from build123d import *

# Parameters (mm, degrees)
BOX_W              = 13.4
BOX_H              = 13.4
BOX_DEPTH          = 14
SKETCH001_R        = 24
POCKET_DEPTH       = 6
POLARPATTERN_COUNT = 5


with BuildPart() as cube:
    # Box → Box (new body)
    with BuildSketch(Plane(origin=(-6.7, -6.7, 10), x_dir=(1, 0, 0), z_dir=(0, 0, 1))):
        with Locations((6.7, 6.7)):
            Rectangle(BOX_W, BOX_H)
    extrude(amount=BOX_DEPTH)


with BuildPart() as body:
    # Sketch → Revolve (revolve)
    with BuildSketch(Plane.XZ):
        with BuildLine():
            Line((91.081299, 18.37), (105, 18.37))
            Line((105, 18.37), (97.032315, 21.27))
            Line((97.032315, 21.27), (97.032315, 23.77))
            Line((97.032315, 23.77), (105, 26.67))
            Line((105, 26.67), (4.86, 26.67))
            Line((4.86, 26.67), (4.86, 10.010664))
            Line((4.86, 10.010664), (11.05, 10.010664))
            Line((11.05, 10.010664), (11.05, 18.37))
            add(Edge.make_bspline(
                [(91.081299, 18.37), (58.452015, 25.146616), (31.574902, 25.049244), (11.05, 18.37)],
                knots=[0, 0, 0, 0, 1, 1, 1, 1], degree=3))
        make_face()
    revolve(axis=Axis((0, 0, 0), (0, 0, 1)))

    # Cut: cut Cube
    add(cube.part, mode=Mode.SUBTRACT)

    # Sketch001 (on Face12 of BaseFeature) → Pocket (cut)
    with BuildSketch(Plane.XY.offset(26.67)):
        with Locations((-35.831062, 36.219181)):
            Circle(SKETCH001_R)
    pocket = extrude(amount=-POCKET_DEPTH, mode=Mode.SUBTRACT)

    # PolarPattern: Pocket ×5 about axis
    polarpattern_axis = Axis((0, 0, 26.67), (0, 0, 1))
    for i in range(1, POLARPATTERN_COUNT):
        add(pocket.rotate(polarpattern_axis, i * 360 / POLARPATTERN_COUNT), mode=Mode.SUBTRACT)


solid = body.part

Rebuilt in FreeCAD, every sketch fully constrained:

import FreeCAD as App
import Part
import Sketcher
Q = App.Units.Quantity


def add_polygon(sketch, points):
    """Adds a closed chain of lines whose ends are joined by coincident constraints."""
    first, n = sketch.GeometryCount, len(points)
    for a, b in zip(points, points[1:] + points[:1]):
        sketch.addGeometry(Part.LineSegment(App.Vector(*a, 0), App.Vector(*b, 0)), False)
    for i in range(n):
        sketch.addConstraint(Sketcher.Constraint("Coincident", first + i, 2, first + (i + 1) % n, 1))

doc = App.newDocument("Part")
body = doc.addObject("PartDesign::Body", "Body")

# Sketch on XY plane
sketch1 = body.newObject("Sketcher::SketchObject", "Sketch")
sketch1.AttachmentSupport = (doc.getObject("XY_Plane"), [""])
sketch1.MapMode = "FlatFace"
sketch1.AttachmentOffset = App.Placement(App.Vector(0, 0, 10), App.Rotation())
add_polygon(sketch1, [(-6.7, 6.7), (-6.7, -6.7), (6.7, -6.7), (6.7, 6.7)])  # lines 0-3
sketch1.addConstraint(Sketcher.Constraint("Vertical", 0))
sketch1.addConstraint(Sketcher.Constraint("Horizontal", 1))
sketch1.addConstraint(Sketcher.Constraint("Vertical", 2))
sketch1.addConstraint(Sketcher.Constraint("Horizontal", 3))
sketch1.addConstraint(Sketcher.Constraint("Symmetric", 0, 2, 2, 2, -1, 1))
sketch1.addConstraint(Sketcher.Constraint("Equal", 3, 0))
sketch1.addConstraint(Sketcher.Constraint("DistanceX", 1, 1, 1, 2, Q("13.4 mm")))
pad1 = body.newObject("PartDesign::Pad", "Pad")
pad1.Profile = sketch1
pad1.Length = 14
body2 = doc.addObject("PartDesign::Body", "Body001")

# Sketch on XZ plane
sketch2 = body2.newObject("Sketcher::SketchObject", "Sketch001")
sketch2.AttachmentSupport = (doc.getObject("XZ_Plane001"), [""])
sketch2.MapMode = "FlatFace"
sketch2.addGeometry(Part.LineSegment(App.Vector(91.081299, 18.37, 0), App.Vector(105, 18.37, 0)), False)
sketch2.addGeometry(Part.LineSegment(App.Vector(105, 18.37, 0), App.Vector(97.032315, 21.27, 0)), False)
sketch2.addGeometry(Part.LineSegment(App.Vector(97.032315, 21.27, 0), App.Vector(97.032315, 23.77, 0)), False)
sketch2.addGeometry(Part.LineSegment(App.Vector(97.032315, 23.77, 0), App.Vector(105, 26.67, 0)), False)
sketch2.addGeometry(Part.LineSegment(App.Vector(105, 26.67, 0), App.Vector(4.86, 26.67, 0)), False)
sketch2.addGeometry(Part.LineSegment(App.Vector(4.86, 26.67, 0), App.Vector(4.86, 10.010664, 0)), False)
sketch2.addGeometry(Part.LineSegment(App.Vector(4.86, 10.010664, 0), App.Vector(11.05, 10.010664, 0)), False)
sketch2.addGeometry(Part.LineSegment(App.Vector(11.05, 10.010664, 0), App.Vector(11.05, 18.37, 0)), False)
sketch2.addGeometry(Part.BSplineCurve([App.Vector(91.081299, 18.37, 0), App.Vector(58.452015, 25.146616, 0), App.Vector(31.574902, 25.049244, 0), App.Vector(11.05, 18.37, 0)], [4, 4], [0, 1], False, 3, [1, 1, 1, 1], False), False)
sketch2.addConstraint(Sketcher.Constraint("Block", 8))
sketch2.addConstraint(Sketcher.Constraint("Coincident", 0, 2, 1, 1))
sketch2.addConstraint(Sketcher.Constraint("Coincident", 1, 2, 2, 1))
sketch2.addConstraint(Sketcher.Constraint("Coincident", 2, 2, 3, 1))
sketch2.addConstraint(Sketcher.Constraint("Coincident", 3, 2, 4, 1))
sketch2.addConstraint(Sketcher.Constraint("Coincident", 4, 2, 5, 1))
sketch2.addConstraint(Sketcher.Constraint("Coincident", 5, 2, 6, 1))
sketch2.addConstraint(Sketcher.Constraint("Coincident", 6, 2, 7, 1))
sketch2.addConstraint(Sketcher.Constraint("Coincident", 7, 2, 8, 2))
sketch2.addConstraint(Sketcher.Constraint("Coincident", 8, 1, 0, 1))
sketch2.addConstraint(Sketcher.Constraint("Horizontal", 0))
sketch2.addConstraint(Sketcher.Constraint("Vertical", 2))
sketch2.addConstraint(Sketcher.Constraint("Horizontal", 4))
sketch2.addConstraint(Sketcher.Constraint("Vertical", 5))
sketch2.addConstraint(Sketcher.Constraint("Horizontal", 6))
sketch2.addConstraint(Sketcher.Constraint("Vertical", 7))
sketch2.addConstraint(Sketcher.Constraint("Vertical", 0, 2, 3, 2))
sketch2.addConstraint(Sketcher.Constraint("Equal", 1, 3))
sketch2.addConstraint(Sketcher.Constraint("Angle", 1, Q("160.000001 deg")))
sketch2.addConstraint(Sketcher.Constraint("DistanceY", 2, 1, 2, 2, Q("2.5 mm")))
sketch2.addConstraint(Sketcher.Constraint("DistanceX", -1, 1, 0, 2, Q("105 mm")))
sketch2.addConstraint(Sketcher.Constraint("DistanceX", 4, 2, 4, 1, Q("100.14 mm")))
sketch2.addConstraint(Sketcher.Constraint("DistanceY", 0, 2, 1, 2, Q("2.9 mm")))
sketch2.addConstraint(Sketcher.Constraint("DistanceY", 5, 2, 5, 1, Q("16.659336 mm")))
revolution = body2.newObject("PartDesign::Revolution", "Revolution")
revolution.Profile = sketch2
revolution.ReferenceAxis = (sketch2, ["V_Axis"])
revolution.Angle = 360
doc.recompute()

boolean = body2.newObject("PartDesign::Boolean", "Boolean")
boolean.Type = "Cut"
boolean.addObjects([body])

# Sketch on XY plane
sketch3 = body2.newObject("Sketcher::SketchObject", "Sketch002")
sketch3.AttachmentSupport = (doc.getObject("XY_Plane001"), [""])
sketch3.MapMode = "FlatFace"
sketch3.AttachmentOffset = App.Placement(App.Vector(0, 0, 26.67), App.Rotation())
sketch3.addGeometry(Part.Circle(App.Vector(-35.831062, 36.219181, 0), App.Vector(0, 0, 1), 24), False)
sketch3.addConstraint(Sketcher.Constraint("Diameter", 0, Q("48 mm")))
sketch3.addConstraint(Sketcher.Constraint("DistanceY", -1, 1, 0, 3, Q("36.219181 mm")))
sketch3.addConstraint(Sketcher.Constraint("DistanceX", 0, 3, -1, 1, Q("35.831062 mm")))
pocket1 = body2.newObject("PartDesign::Pocket", "Pocket")
pocket1.Profile = sketch3
pocket1.Length = 6
doc.recompute()

polarpattern = body2.newObject("PartDesign::PolarPattern", "PolarPattern")
polarpattern.Originals = [pocket1]
polarpattern.Axis = (doc.getObject("Z_Axis001"), [""])
polarpattern.Angle = 360
polarpattern.Occurrences = 5
body2.Tip = polarpattern

doc.recompute()
